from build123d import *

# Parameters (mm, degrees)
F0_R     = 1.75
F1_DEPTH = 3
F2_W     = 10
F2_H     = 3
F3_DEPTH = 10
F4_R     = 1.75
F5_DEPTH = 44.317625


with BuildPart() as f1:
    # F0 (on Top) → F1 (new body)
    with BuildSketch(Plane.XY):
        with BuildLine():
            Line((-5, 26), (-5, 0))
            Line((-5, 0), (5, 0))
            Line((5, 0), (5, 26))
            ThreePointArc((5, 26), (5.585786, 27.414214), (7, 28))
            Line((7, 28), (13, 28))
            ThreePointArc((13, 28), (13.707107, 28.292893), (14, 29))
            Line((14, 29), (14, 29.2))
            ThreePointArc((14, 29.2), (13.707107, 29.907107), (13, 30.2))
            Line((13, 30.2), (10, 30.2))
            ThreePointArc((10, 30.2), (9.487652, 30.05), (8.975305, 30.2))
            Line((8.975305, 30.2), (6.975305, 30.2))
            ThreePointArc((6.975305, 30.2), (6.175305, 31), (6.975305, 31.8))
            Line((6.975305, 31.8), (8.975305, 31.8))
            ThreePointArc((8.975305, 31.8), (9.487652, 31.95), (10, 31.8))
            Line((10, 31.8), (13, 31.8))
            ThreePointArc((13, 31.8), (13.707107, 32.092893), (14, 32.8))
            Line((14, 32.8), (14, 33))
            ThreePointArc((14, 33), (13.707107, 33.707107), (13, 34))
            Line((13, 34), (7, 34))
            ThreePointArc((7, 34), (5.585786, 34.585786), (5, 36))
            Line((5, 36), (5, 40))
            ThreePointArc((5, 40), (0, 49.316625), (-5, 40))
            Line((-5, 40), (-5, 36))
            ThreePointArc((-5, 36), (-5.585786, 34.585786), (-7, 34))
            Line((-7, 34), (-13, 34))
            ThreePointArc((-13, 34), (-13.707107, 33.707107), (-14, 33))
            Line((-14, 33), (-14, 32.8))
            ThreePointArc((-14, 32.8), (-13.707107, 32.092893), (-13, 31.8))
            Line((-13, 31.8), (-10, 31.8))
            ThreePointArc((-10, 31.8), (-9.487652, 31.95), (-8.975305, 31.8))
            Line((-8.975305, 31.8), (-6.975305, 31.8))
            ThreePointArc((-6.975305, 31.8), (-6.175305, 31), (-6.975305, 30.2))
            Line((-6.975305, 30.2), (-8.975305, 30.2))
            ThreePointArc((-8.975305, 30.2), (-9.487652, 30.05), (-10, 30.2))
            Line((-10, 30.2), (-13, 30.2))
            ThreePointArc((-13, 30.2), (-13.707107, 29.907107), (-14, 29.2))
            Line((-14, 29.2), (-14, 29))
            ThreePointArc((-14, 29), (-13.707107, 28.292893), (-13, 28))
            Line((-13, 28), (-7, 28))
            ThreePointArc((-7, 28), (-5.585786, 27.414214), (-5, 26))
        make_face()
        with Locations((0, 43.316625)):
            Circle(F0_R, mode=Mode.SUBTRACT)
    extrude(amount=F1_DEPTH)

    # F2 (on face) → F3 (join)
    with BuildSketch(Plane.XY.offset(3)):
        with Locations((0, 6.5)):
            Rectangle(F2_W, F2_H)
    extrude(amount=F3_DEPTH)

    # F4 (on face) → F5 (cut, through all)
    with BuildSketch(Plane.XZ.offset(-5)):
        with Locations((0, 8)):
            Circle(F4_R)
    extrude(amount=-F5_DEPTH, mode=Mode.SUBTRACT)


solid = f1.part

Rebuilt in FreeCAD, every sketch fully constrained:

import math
import FreeCAD as App
import Part
import Sketcher

V = App.Vector
Q = App.Units.Quantity


def add_polygon(sketch, points):
    """Adds a closed chain of lines whose ends are joined by coincident constraints."""
    first, n = sketch.GeometryCount, len(points)
    for a, b in zip(points, points[1:] + points[:1]):
        sketch.addGeometry(Part.LineSegment(App.Vector(*a, 0), App.Vector(*b, 0)), False)
    for i in range(n):
        sketch.addConstraint(Sketcher.Constraint("Coincident", first + i, 2, first + (i + 1) % n, 1))

doc = App.newDocument("Part")
body = doc.addObject("PartDesign::Body", "Body")

# Sketch on XY plane
sketch1 = body.newObject("Sketcher::SketchObject", "Sketch")
sketch1.AttachmentSupport = (doc.getObject("XY_Plane"), [""])
sketch1.MapMode = "FlatFace"
sketch1.addGeometry(Part.LineSegment(V(-5, 26, 0), V(-5, 0, 0)), False)
sketch1.addGeometry(Part.LineSegment(V(-5, 0, 0), V(5, 0, 0)), False)
sketch1.addGeometry(Part.LineSegment(V(5, 0, 0), V(5, 26, 0)), False)
sketch1.addGeometry(Part.ArcOfCircle(Part.Circle(V(7, 26, 0), V(0, 0, 1), 2), math.radians(90), math.radians(180)), False)
sketch1.addGeometry(Part.LineSegment(V(7, 28, 0), V(13, 28, 0)), False)
sketch1.addGeometry(Part.ArcOfCircle(Part.Circle(V(13, 29, 0), V(0, 0, 1), 1), math.radians(-90), math.radians(0)), False)
sketch1.addGeometry(Part.LineSegment(V(14, 29, 0), V(14, 29.2, 0)), False)
sketch1.addGeometry(Part.ArcOfCircle(Part.Circle(V(13, 29.2, 0), V(0, 0, 1), 1), math.radians(0), math.radians(90)), False)
sketch1.addGeometry(Part.LineSegment(V(13, 30.2, 0), V(10, 30.2, 0)), False)
sketch1.addGeometry(Part.ArcOfCircle(Part.Circle(V(9.49, 31, 0), V(0, 0, 1), 0.95), math.radians(-123), math.radians(-57)), False)
sketch1.addGeometry(Part.LineSegment(V(8.98, 30.2, 0), V(6.98, 30.2, 0)), False)
sketch1.addGeometry(Part.ArcOfCircle(Part.Circle(V(6.98, 31, 0), V(0, 0, 1), 0.8), math.radians(90), math.radians(270)), False)
sketch1.addGeometry(Part.LineSegment(V(6.98, 31.8, 0), V(8.98, 31.8, 0)), False)
sketch1.addGeometry(Part.ArcOfCircle(Part.Circle(V(9.49, 31, 0), V(0, 0, 1), 0.95), math.radians(57), math.radians(123)), False)
sketch1.addGeometry(Part.LineSegment(V(10, 31.8, 0), V(13, 31.8, 0)), False)
sketch1.addGeometry(Part.ArcOfCircle(Part.Circle(V(13, 32.8, 0), V(0, 0, 1), 1), math.radians(-90), math.radians(0)), False)
sketch1.addGeometry(Part.LineSegment(V(14, 32.8, 0), V(14, 33, 0)), False)
sketch1.addGeometry(Part.ArcOfCircle(Part.Circle(V(13, 33, 0), V(0, 0, 1), 1), math.radians(0), math.radians(90)), False)
sketch1.addGeometry(Part.LineSegment(V(13, 34, 0), V(7, 34, 0)), False)
sketch1.addGeometry(Part.ArcOfCircle(Part.Circle(V(7, 36, 0), V(0, 0, 1), 2), math.radians(180), math.radians(270)), False)
sketch1.addGeometry(Part.LineSegment(V(5, 36, 0), V(5, 40, 0)), False)
sketch1.addGeometry(Part.ArcOfCircle(Part.Circle(V(0, 43.32, 0), V(0, 0, 1), 6), math.radians(-34), math.radians(214)), False)
sketch1.addGeometry(Part.LineSegment(V(-5, 40, 0), V(-5, 36, 0)), False)
sketch1.addGeometry(Part.ArcOfCircle(Part.Circle(V(-7, 36, 0), V(0, 0, 1), 2), math.radians(-90), math.radians(0)), False)
sketch1.addGeometry(Part.LineSegment(V(-7, 34, 0), V(-13, 34, 0)), False)
sketch1.addGeometry(Part.ArcOfCircle(Part.Circle(V(-13, 33, 0), V(0, 0, 1), 1), math.radians(90), math.radians(180)), False)
sketch1.addGeometry(Part.LineSegment(V(-14, 33, 0), V(-14, 32.8, 0)), False)
sketch1.addGeometry(Part.ArcOfCircle(Part.Circle(V(-13, 32.8, 0), V(0, 0, 1), 1), math.radians(180), math.radians(270)), False)
sketch1.addGeometry(Part.LineSegment(V(-13, 31.8, 0), V(-10, 31.8, 0)), False)
sketch1.addGeometry(Part.ArcOfCircle(Part.Circle(V(-9.49, 31, 0), V(0, 0, 1), 0.95), math.radians(57), math.radians(123)), False)
sketch1.addGeometry(Part.LineSegment(V(-8.98, 31.8, 0), V(-6.98, 31.8, 0)), False)
sketch1.addGeometry(Part.ArcOfCircle(Part.Circle(V(-6.98, 31, 0), V(0, 0, 1), 0.8), math.radians(-90), math.radians(90)), False)
sketch1.addGeometry(Part.LineSegment(V(-6.98, 30.2, 0), V(-8.98, 30.2, 0)), False)
sketch1.addGeometry(Part.ArcOfCircle(Part.Circle(V(-9.49, 31, 0), V(0, 0, 1), 0.95), math.radians(-123), math.radians(-57)), False)
sketch1.addGeometry(Part.LineSegment(V(-10, 30.2, 0), V(-13, 30.2, 0)), False)
sketch1.addGeometry(Part.ArcOfCircle(Part.Circle(V(-13, 29.2, 0), V(0, 0, 1), 1), math.radians(90), math.radians(180)), False)
sketch1.addGeometry(Part.LineSegment(V(-14, 29.2, 0), V(-14, 29, 0)), False)
sketch1.addGeometry(Part.ArcOfCircle(Part.Circle(V(-13, 29, 0), V(0, 0, 1), 1), math.radians(180), math.radians(270)), False)
sketch1.addGeometry(Part.LineSegment(V(-13, 28, 0), V(-7, 28, 0)), False)
sketch1.addGeometry(Part.ArcOfCircle(Part.Circle(V(-7, 26, 0), V(0, 0, 1), 2), math.radians(0), math.radians(90)), False)
sketch1.addGeometry(Part.Circle(V(0, 43.32, 0), V(0, 0, 1), 1.75), False)
sketch1.addConstraint(Sketcher.Constraint("Coincident", 0, 2, 1, 1))
sketch1.addConstraint(Sketcher.Constraint("Coincident", 1, 2, 2, 1))
sketch1.addConstraint(Sketcher.Constraint("Tangent", 2, 2, 3, 2))
sketch1.addConstraint(Sketcher.Constraint("Tangent", 3, 1, 4, 1))
sketch1.addConstraint(Sketcher.Constraint("Tangent", 4, 2, 5, 1))
sketch1.addConstraint(Sketcher.Constraint("Tangent", 5, 2, 6, 1))
sketch1.addConstraint(Sketcher.Constraint("Tangent", 6, 2, 7, 1))
sketch1.addConstraint(Sketcher.Constraint("Tangent", 7, 2, 8, 1))
sketch1.addConstraint(Sketcher.Constraint("Coincident", 8, 2, 9, 2))
sketch1.addConstraint(Sketcher.Constraint("Coincident", 9, 1, 10, 1))
sketch1.addConstraint(Sketcher.Constraint("Tangent", 10, 2, 11, 2))
sketch1.addConstraint(Sketcher.Constraint("Tangent", 11, 1, 12, 1))
sketch1.addConstraint(Sketcher.Constraint("Coincident", 12, 2, 13, 2))
sketch1.addConstraint(Sketcher.Constraint("Coincident", 13, 1, 14, 1))
sketch1.addConstraint(Sketcher.Constraint("Tangent", 14, 2, 15, 1))
sketch1.addConstraint(Sketcher.Constraint("Tangent", 15, 2, 16, 1))
sketch1.addConstraint(Sketcher.Constraint("Tangent", 16, 2, 17, 1))
sketch1.addConstraint(Sketcher.Constraint("Tangent", 17, 2, 18, 1))
sketch1.addConstraint(Sketcher.Constraint("Tangent", 18, 2, 19, 2))
sketch1.addConstraint(Sketcher.Constraint("Tangent", 19, 1, 20, 1))
sketch1.addConstraint(Sketcher.Constraint("Coincident", 20, 2, 21, 1))
sketch1.addConstraint(Sketcher.Constraint("Coincident", 21, 2, 22, 1))
sketch1.addConstraint(Sketcher.Constraint("Tangent", 22, 2, 23, 2))
sketch1.addConstraint(Sketcher.Constraint("Tangent", 23, 1, 24, 1))
sketch1.addConstraint(Sketcher.Constraint("Tangent", 24, 2, 25, 1))
sketch1.addConstraint(Sketcher.Constraint("Tangent", 25, 2, 26, 1))
sketch1.addConstraint(Sketcher.Constraint("Tangent", 26, 2, 27, 1))
sketch1.addConstraint(Sketcher.Constraint("Tangent", 27, 2, 28, 1))
sketch1.addConstraint(Sketcher.Constraint("Coincident", 28, 2, 29, 2))
sketch1.addConstraint(Sketcher.Constraint("Coincident", 29, 1, 30, 1))
sketch1.addConstraint(Sketcher.Constraint("Tangent", 30, 2, 31, 2))
sketch1.addConstraint(Sketcher.Constraint("Tangent", 31, 1, 32, 1))
sketch1.addConstraint(Sketcher.Constraint("Coincident", 32, 2, 33, 2))
sketch1.addConstraint(Sketcher.Constraint("Coincident", 33, 1, 34, 1))
sketch1.addConstraint(Sketcher.Constraint("Tangent", 34, 2, 35, 1))
sketch1.addConstraint(Sketcher.Constraint("Tangent", 35, 2, 36, 1))
sketch1.addConstraint(Sketcher.Constraint("Tangent", 36, 2, 37, 1))
sketch1.addConstraint(Sketcher.Constraint("Tangent", 37, 2, 38, 1))
sketch1.addConstraint(Sketcher.Constraint("Tangent", 38, 2, 39, 2))
sketch1.addConstraint(Sketcher.Constraint("Tangent", 39, 1, 0, 1))
sketch1.addConstraint(Sketcher.Constraint("Vertical", 0))
sketch1.addConstraint(Sketcher.Constraint("Horizontal", 1))
sketch1.addConstraint(Sketcher.Constraint("Vertical", 2))
sketch1.addConstraint(Sketcher.Constraint("Horizontal", 4))
sketch1.addConstraint(Sketcher.Constraint("Vertical", 6))
sketch1.addConstraint(Sketcher.Constraint("Horizontal", 8))
sketch1.addConstraint(Sketcher.Constraint("Horizontal", 10))
sketch1.addConstraint(Sketcher.Constraint("Horizontal", 12))
sketch1.addConstraint(Sketcher.Constraint("Horizontal", 14))
sketch1.addConstraint(Sketcher.Constraint("Vertical", 16))
sketch1.addConstraint(Sketcher.Constraint("Horizontal", 18))
sketch1.addConstraint(Sketcher.Constraint("Vertical", 20))
sketch1.addConstraint(Sketcher.Constraint("Vertical", 22))
sketch1.addConstraint(Sketcher.Constraint("Horizontal", 24))
sketch1.addConstraint(Sketcher.Constraint("Vertical", 26))
sketch1.addConstraint(Sketcher.Constraint("Horizontal", 28))
sketch1.addConstraint(Sketcher.Constraint("Horizontal", 30))
sketch1.addConstraint(Sketcher.Constraint("Horizontal", 32))
sketch1.addConstraint(Sketcher.Constraint("Horizontal", 34))
sketch1.addConstraint(Sketcher.Constraint("Vertical", 36))
sketch1.addConstraint(Sketcher.Constraint("Horizontal", 38))
sketch1.addConstraint(Sketcher.Constraint("Coincident", 13, 3, 9, 3))
sketch1.addConstraint(Sketcher.Constraint("Coincident", 33, 3, 29, 3))
sketch1.addConstraint(Sketcher.Constraint("Coincident", 40, 3, 21, 3))
sketch1.addConstraint(Sketcher.Constraint("Equal", 5, 7))
sketch1.addConstraint(Sketcher.Constraint("Equal", 9, 13))
sketch1.addConstraint(Sketcher.Constraint("Equal", 7, 15))
sketch1.addConstraint(Sketcher.Constraint("Equal", 15, 17))
sketch1.addConstraint(Sketcher.Constraint("Equal", 3, 19))
sketch1.addConstraint(Sketcher.Constraint("Equal", 19, 23))
sketch1.addConstraint(Sketcher.Constraint("Equal", 17, 25))
sketch1.addConstraint(Sketcher.Constraint("Equal", 25, 27))
sketch1.addConstraint(Sketcher.Constraint("Equal", 13, 29))
sketch1.addConstraint(Sketcher.Constraint("Equal", 11, 31))
sketch1.addConstraint(Sketcher.Constraint("Equal", 29, 33))
sketch1.addConstraint(Sketcher.Constraint("Equal", 27, 35))
sketch1.addConstraint(Sketcher.Constraint("Equal", 35, 37))
sketch1.addConstraint(Sketcher.Constraint("Equal", 23, 39))
sketch1.addConstraint(Sketcher.Constraint("Symmetric", 0, 2, 1, 2, -1, 1))
sketch1.addConstraint(Sketcher.Constraint("Symmetric", 19, 3, 23, 3, -2))
sketch1.addConstraint(Sketcher.Constraint("Symmetric", 15, 3, 27, 3, -2))
sketch1.addConstraint(Sketcher.Constraint("Symmetric", 9, 3, 29, 3, -2))
sketch1.addConstraint(Sketcher.Constraint("Symmetric", 11, 3, 31, 3, -2))
sketch1.addConstraint(Sketcher.Constraint("Symmetric", 7, 3, 35, 3, -2))
sketch1.addConstraint(Sketcher.Constraint("PointOnObject", 21, 3, -2))
sketch1.addConstraint(Sketcher.Constraint("Horizontal", 9, 3, 11, 3))
sketch1.addConstraint(Sketcher.Constraint("Horizontal", 5, 3, 37, 3))
sketch1.addConstraint(Sketcher.Constraint("Horizontal", 8, 2, 9, 1))
sketch1.addConstraint(Sketcher.Constraint("Horizontal", 12, 2, 13, 1))
sketch1.addConstraint(Sketcher.Constraint("Vertical", 7, 3, 15, 3))
sketch1.addConstraint(Sketcher.Constraint("Vertical", 3, 3, 19, 3))
sketch1.addConstraint(Sketcher.Constraint("Equal", 6, 16))
sketch1.addConstraint(Sketcher.Constraint("Radius", 3, Q("1.999999 mm")))
sketch1.addConstraint(Sketcher.Constraint("Radius", 5, Q("0.999999 mm")))
sketch1.addConstraint(Sketcher.Constraint("Radius", 21, Q("6 mm")))
sketch1.addConstraint(Sketcher.Constraint("Diameter", 40, Q("3.5 mm")))
sketch1.addConstraint(Sketcher.Constraint("Radius", 11, Q("0.8 mm")))
sketch1.addConstraint(Sketcher.Constraint("DistanceX", 1, 1, 1, 2, Q("10 mm")))
sketch1.addConstraint(Sketcher.Constraint("DistanceX", 4, 1, 4, 2, Q("6 mm")))
sketch1.addConstraint(Sketcher.Constraint("DistanceX", 8, 2, 8, 1, Q("3 mm")))
sketch1.addConstraint(Sketcher.Constraint("DistanceX", 10, 2, 10, 1, Q("2 mm")))
sketch1.addConstraint(Sketcher.Constraint("DistanceY", 0, 2, 0, 1, Q("26 mm")))
sketch1.addConstraint(Sketcher.Constraint("DistanceY", 20, 1, 20, 2, Q("4 mm")))
sketch1.addConstraint(Sketcher.Constraint("Radius", 9, Q("0.95 mm")))
sketch1.addConstraint(Sketcher.Constraint("DistanceY", 6, 1, 6, 2, Q("0.2 mm")))
pad1 = body.newObject("PartDesign::Pad", "Pad")
pad1.Profile = sketch1
pad1.Length = 3

# Sketch on XY plane
sketch2 = body.newObject("Sketcher::SketchObject", "Sketch001")
sketch2.AttachmentSupport = (doc.getObject("XY_Plane"), [""])
sketch2.MapMode = "FlatFace"
sketch2.AttachmentOffset = App.Placement(V(0, 0, 3), App.Rotation())
add_polygon(sketch2, [(-5, 8), (-5, 5), (5, 5), (5, 8)])  # lines 0-3
sketch2.addConstraint(Sketcher.Constraint("Vertical", 0))
sketch2.addConstraint(Sketcher.Constraint("Horizontal", 1))
sketch2.addConstraint(Sketcher.Constraint("Vertical", 2))
sketch2.addConstraint(Sketcher.Constraint("Horizontal", 3))
sketch2.addConstraint(Sketcher.Constraint("DistanceX", 1, 1, 1, 2, Q("10 mm")))
sketch2.addConstraint(Sketcher.Constraint("DistanceY", 0, 2, 0, 1, Q("3 mm")))
sketch2.addConstraint(Sketcher.Constraint("DistanceX", 0, 2, -1, 1, Q("5 mm")))
sketch2.addConstraint(Sketcher.Constraint("DistanceY", -1, 1, 0, 2, Q("5 mm")))
pad2 = body.newObject("PartDesign::Pad", "Pad001")
pad2.Profile = sketch2
pad2.Length = 10

# Sketch on XZ plane
sketch3 = body.newObject("Sketcher::SketchObject", "Sketch002")
sketch3.AttachmentSupport = (doc.getObject("XZ_Plane"), [""])
sketch3.MapMode = "FlatFace"
sketch3.AttachmentOffset = App.Placement(V(0, 0, -5), App.Rotation())
sketch3.addGeometry(Part.Circle(V(0, 8, 0), V(0, 0, 1), 1.8), False)
sketch3.addConstraint(Sketcher.Constraint("PointOnObject", 0, 3, -2))
sketch3.addConstraint(Sketcher.Constraint("Diameter", 0, Q("3.5 mm")))
sketch3.addConstraint(Sketcher.Constraint("DistanceY", -1, 1, 0, 3, Q("8 mm")))
pocket1 = body.newObject("PartDesign::Pocket", "Pocket")
pocket1.Profile = sketch3
pocket1.Type = "ThroughAll"

doc.recompute()
